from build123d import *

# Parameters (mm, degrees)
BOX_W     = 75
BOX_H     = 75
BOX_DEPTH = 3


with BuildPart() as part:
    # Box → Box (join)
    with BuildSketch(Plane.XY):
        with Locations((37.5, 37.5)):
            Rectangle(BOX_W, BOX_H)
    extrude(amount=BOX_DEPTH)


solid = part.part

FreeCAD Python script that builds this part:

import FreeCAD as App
import Part
import Sketcher

doc = App.newDocument("Part")
body = doc.addObject("PartDesign::Body", "Body")

# Sketch on XY plane
sketch1 = doc.addObject("Sketcher::SketchObject", "Sketch")
body.addObject(sketch1)
sketch1.AttachmentSupport = (doc.XY_Plane, [""])
sketch1.MapMode = "FlatFace"
sketch1.addGeometry([
    Part.LineSegment(App.Vector(0, 75, 0), App.Vector(0, 0, 0)),
    Part.LineSegment(App.Vector(0, 0, 0), App.Vector(75, 0, 0)),
    Part.LineSegment(App.Vector(75, 0, 0), App.Vector(75, 75, 0)),
    Part.LineSegment(App.Vector(75, 75, 0), App.Vector(0, 75, 0)),
], False)
sketch1.addConstraint([
    Sketcher.Constraint("Coincident", 0, 2, 1, 1),
    Sketcher.Constraint("Coincident", 1, 2, 2, 1),
    Sketcher.Constraint("Coincident", 2, 2, 3, 1),
    Sketcher.Constraint("Coincident", 3, 2, 0, 1),
    Sketcher.Constraint("Vertical", 0),
    Sketcher.Constraint("Horizontal", 1),
    Sketcher.Constraint("Vertical", 2),
    Sketcher.Constraint("Horizontal", 3),
    Sketcher.Constraint("Coincident", 0, 2, -1, 1),
    Sketcher.Constraint("Equal", 3, 0),
    Sketcher.Constraint("DistanceX", 1, 1, 1, 2, 75.0),
])
pad1 = doc.addObject("PartDesign::Pad", "Pad")
body.addObject(pad1)
pad1.Profile = sketch1
pad1.Length = 3

doc.recompute()
